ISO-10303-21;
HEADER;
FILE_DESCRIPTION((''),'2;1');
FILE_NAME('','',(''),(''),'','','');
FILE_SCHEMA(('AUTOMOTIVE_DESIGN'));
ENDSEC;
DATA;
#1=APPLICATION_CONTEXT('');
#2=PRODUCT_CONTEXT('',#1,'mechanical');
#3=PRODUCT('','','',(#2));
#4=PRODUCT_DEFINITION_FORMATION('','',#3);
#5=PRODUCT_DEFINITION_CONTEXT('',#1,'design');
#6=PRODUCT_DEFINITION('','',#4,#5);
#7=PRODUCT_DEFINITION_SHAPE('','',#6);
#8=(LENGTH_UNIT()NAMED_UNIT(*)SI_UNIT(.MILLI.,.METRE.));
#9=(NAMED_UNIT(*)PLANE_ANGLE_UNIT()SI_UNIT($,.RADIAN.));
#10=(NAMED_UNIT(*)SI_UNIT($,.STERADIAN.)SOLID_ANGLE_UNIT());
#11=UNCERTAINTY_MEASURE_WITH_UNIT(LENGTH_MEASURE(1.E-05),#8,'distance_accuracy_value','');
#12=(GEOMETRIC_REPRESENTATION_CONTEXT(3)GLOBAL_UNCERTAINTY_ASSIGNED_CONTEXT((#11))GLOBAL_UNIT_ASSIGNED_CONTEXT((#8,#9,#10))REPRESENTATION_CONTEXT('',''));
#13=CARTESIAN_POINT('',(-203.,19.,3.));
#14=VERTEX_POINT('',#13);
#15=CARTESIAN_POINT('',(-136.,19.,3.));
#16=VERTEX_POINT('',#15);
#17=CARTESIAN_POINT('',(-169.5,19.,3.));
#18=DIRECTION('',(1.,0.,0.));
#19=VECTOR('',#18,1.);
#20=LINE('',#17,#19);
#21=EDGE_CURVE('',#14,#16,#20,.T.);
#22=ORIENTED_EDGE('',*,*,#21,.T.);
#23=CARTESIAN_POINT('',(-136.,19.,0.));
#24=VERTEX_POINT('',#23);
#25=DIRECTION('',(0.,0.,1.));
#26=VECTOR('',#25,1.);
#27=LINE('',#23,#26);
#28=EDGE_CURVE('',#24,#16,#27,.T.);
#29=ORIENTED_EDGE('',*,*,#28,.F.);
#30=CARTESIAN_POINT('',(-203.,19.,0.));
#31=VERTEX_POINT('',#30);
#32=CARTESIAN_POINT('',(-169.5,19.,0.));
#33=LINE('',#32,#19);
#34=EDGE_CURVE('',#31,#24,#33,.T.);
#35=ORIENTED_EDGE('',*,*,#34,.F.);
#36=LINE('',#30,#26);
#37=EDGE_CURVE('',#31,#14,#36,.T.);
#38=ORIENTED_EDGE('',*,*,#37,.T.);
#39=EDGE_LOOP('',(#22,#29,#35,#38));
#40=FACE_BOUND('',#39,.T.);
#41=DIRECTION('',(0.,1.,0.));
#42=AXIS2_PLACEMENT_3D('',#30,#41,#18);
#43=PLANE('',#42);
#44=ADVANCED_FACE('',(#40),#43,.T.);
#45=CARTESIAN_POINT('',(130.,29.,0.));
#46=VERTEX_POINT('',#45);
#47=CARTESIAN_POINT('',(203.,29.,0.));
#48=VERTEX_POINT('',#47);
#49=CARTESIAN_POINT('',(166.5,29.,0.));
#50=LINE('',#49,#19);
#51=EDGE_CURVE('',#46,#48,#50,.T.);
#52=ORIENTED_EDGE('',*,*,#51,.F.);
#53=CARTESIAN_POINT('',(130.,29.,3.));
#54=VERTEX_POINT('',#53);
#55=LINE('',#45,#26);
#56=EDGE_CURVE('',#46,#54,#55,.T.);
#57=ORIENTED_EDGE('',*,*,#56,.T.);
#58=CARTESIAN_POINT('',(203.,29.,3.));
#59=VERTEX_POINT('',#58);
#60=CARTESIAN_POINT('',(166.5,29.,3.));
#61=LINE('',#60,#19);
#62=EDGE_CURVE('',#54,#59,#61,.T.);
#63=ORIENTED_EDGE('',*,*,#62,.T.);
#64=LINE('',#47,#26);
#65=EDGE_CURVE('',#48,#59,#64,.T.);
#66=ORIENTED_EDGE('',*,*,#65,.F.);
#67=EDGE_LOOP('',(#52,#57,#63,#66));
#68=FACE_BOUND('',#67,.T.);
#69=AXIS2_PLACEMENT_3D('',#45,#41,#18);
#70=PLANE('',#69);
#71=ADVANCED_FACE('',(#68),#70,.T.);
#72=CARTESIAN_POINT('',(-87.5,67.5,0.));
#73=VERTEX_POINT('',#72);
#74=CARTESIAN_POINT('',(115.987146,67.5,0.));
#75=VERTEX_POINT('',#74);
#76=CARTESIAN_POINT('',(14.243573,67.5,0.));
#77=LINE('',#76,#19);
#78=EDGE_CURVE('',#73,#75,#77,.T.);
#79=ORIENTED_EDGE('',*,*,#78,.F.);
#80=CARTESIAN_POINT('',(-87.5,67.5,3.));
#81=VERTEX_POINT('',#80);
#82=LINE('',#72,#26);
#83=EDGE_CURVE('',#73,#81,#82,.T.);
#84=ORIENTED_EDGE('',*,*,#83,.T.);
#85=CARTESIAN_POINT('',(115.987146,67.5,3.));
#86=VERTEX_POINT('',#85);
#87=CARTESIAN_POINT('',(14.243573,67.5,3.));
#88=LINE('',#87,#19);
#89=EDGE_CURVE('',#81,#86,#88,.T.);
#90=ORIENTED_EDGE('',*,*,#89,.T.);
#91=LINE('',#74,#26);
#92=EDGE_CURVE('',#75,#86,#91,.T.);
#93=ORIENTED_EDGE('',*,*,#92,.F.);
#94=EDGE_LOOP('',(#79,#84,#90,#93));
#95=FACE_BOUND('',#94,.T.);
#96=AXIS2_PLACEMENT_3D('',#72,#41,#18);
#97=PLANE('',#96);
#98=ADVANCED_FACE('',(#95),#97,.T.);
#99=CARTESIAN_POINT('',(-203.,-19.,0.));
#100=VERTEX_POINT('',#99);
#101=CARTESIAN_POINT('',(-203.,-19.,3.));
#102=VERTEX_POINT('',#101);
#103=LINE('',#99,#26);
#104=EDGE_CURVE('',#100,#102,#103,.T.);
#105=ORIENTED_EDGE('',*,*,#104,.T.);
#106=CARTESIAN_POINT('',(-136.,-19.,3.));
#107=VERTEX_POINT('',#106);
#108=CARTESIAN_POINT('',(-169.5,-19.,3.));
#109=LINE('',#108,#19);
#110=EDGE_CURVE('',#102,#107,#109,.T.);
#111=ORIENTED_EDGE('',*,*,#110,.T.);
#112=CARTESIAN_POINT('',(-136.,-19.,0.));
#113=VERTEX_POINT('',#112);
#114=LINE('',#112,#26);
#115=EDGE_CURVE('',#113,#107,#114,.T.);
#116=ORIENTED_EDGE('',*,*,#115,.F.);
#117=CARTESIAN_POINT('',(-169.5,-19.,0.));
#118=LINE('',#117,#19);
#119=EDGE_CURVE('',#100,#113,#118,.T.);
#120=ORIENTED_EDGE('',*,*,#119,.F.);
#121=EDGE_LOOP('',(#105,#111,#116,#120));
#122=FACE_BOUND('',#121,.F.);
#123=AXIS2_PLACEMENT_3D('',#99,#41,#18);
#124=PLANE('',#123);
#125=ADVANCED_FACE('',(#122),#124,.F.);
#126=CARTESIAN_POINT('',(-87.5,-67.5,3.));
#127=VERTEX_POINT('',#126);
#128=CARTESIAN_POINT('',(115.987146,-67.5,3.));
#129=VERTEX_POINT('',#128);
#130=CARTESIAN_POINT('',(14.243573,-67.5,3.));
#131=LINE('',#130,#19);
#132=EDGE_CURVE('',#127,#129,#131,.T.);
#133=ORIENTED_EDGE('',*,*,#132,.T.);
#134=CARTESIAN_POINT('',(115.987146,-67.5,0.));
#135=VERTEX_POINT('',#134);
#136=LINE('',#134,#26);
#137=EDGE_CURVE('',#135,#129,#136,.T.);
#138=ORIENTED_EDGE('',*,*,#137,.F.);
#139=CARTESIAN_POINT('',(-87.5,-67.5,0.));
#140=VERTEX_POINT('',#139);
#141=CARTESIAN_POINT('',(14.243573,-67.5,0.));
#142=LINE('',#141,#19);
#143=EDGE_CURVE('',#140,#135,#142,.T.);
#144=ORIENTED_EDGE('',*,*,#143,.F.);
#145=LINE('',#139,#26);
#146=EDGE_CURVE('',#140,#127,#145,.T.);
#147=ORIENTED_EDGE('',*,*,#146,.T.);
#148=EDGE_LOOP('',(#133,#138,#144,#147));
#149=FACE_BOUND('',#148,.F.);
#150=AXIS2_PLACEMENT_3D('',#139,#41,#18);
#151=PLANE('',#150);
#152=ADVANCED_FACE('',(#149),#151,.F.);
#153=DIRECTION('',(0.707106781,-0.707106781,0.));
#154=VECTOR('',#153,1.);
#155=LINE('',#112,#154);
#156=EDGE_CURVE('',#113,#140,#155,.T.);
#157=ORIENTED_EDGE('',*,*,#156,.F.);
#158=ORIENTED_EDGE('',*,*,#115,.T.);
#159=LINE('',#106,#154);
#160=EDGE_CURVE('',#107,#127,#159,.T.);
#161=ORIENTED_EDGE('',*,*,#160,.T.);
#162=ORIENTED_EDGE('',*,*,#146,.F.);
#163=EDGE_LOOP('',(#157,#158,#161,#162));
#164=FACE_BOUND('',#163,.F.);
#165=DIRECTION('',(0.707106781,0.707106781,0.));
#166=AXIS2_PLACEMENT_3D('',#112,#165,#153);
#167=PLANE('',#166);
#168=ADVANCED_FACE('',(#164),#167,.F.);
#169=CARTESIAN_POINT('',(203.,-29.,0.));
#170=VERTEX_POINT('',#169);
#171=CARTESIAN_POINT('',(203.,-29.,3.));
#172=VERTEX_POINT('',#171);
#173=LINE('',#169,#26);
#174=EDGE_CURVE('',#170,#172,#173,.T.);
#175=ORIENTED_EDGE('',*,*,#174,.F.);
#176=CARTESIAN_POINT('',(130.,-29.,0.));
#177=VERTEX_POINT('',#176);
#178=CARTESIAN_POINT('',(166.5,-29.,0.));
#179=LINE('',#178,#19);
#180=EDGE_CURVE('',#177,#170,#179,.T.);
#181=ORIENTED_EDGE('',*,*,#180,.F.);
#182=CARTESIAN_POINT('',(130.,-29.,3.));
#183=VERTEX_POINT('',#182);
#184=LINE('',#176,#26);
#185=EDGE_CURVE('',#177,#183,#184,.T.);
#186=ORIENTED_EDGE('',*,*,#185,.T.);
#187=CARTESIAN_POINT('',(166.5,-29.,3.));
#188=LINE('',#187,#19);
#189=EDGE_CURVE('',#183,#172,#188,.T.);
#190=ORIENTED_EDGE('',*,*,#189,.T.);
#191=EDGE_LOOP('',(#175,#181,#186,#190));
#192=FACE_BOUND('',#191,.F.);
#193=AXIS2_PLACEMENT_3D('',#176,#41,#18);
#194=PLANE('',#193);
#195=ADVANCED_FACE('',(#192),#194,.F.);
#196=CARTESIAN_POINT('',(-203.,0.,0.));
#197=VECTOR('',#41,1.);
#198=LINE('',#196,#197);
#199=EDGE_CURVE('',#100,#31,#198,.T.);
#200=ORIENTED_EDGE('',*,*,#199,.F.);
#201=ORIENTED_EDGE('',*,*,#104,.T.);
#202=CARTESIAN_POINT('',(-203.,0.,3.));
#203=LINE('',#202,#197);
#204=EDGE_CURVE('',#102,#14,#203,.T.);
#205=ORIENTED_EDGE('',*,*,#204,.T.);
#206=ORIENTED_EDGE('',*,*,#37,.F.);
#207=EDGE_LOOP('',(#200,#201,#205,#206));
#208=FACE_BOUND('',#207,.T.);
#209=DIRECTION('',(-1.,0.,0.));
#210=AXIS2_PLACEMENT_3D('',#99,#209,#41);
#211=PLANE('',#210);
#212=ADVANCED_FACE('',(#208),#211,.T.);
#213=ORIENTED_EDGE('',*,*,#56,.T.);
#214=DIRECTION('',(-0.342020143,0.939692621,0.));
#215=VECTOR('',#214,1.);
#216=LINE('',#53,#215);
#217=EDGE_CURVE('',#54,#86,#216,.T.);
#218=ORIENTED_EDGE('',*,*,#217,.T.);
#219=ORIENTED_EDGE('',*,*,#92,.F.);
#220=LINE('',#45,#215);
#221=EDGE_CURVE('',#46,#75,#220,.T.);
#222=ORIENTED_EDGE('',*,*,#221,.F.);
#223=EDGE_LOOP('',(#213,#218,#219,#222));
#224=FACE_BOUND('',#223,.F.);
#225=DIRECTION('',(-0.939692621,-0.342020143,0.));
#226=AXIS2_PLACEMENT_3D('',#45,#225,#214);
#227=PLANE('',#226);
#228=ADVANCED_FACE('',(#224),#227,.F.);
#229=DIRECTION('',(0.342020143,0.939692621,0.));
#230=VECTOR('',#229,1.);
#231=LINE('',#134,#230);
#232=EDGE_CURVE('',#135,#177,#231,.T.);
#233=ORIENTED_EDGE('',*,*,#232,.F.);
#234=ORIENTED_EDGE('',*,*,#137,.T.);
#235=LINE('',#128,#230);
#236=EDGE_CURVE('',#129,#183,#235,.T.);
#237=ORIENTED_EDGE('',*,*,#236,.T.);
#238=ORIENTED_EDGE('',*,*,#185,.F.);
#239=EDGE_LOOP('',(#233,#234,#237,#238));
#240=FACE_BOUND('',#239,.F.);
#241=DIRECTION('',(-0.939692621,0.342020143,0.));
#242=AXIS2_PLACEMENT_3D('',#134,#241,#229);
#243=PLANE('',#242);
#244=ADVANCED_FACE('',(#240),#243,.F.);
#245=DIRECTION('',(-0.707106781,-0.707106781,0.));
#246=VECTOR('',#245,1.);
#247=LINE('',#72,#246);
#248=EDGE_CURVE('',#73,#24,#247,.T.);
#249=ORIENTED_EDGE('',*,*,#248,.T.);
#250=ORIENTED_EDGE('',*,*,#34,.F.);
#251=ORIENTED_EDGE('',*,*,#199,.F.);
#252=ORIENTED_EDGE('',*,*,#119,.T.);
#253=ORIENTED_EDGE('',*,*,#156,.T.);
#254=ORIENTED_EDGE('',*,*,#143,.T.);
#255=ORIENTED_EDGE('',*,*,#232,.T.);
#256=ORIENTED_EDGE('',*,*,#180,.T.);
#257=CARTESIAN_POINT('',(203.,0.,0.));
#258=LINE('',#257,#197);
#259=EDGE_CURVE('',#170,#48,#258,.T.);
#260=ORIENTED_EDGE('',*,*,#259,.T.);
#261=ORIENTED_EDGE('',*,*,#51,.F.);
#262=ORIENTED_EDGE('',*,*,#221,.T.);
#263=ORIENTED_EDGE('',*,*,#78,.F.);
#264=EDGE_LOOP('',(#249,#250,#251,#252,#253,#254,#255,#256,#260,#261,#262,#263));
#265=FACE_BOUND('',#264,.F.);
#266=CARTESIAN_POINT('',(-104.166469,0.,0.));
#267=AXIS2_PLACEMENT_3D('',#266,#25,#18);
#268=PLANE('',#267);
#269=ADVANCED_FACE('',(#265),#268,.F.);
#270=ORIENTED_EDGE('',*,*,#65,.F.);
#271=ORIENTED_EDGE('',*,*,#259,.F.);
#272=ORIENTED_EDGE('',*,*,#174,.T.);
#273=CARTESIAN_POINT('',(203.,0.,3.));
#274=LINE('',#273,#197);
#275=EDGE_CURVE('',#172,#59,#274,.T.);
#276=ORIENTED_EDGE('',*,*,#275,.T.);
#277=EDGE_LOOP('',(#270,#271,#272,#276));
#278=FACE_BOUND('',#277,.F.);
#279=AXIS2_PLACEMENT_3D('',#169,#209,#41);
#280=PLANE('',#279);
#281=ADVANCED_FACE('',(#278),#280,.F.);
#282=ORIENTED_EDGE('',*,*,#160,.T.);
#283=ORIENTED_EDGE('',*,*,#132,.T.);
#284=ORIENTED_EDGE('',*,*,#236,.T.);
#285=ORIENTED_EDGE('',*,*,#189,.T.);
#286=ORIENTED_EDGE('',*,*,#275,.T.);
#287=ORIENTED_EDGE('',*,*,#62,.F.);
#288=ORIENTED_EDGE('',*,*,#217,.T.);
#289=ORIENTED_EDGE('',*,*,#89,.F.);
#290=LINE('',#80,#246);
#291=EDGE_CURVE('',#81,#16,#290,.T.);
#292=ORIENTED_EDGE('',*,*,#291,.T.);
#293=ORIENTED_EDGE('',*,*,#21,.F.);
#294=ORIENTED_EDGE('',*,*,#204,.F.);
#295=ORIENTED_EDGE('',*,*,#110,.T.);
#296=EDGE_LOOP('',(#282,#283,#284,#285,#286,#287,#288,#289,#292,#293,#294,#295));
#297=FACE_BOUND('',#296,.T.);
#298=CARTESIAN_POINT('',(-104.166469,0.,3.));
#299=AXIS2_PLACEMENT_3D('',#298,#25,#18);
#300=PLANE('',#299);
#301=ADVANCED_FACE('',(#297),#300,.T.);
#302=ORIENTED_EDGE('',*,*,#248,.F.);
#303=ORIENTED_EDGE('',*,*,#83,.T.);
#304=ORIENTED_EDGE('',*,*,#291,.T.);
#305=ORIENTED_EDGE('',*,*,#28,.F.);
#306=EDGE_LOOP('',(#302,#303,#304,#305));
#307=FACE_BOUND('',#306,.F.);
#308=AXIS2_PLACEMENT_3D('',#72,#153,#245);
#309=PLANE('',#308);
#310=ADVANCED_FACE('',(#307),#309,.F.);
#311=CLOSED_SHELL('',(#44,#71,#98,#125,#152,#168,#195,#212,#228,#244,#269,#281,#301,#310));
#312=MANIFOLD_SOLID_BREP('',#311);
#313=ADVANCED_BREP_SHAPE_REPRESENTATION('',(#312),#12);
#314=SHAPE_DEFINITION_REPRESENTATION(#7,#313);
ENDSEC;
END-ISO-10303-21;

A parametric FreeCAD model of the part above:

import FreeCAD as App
import Part
import Sketcher

V = App.Vector
Q = App.Units.Quantity


def add_polygon(sketch, points):
    """Adds a closed chain of lines whose ends are joined by coincident constraints."""
    first, n = sketch.GeometryCount, len(points)
    for a, b in zip(points, points[1:] + points[:1]):
        sketch.addGeometry(Part.LineSegment(App.Vector(*a, 0), App.Vector(*b, 0)), False)
    for i in range(n):
        sketch.addConstraint(Sketcher.Constraint("Coincident", first + i, 2, first + (i + 1) % n, 1))

doc = App.newDocument("Part")
body = doc.addObject("PartDesign::Body", "Body")

sketch1 = body.newObject("Sketcher::SketchObject", "Sketch")
sketch1.AttachmentSupport = (doc.getObject("XY_Plane"), [""])
sketch1.MapMode = "FlatFace"
add_polygon(sketch1, [(-136, -19), (-88, -68), (116, -68), (130, -29), (203, -29), (203, 29), (130, 29), (116, 68), (-88, 68), (-136, 19), (-203, 19), (-203, -19)])
sketch1.addConstraint(Sketcher.Constraint("Horizontal", 1))
sketch1.addConstraint(Sketcher.Constraint("Horizontal", 3))
sketch1.addConstraint(Sketcher.Constraint("Vertical", 4))
sketch1.addConstraint(Sketcher.Constraint("Horizontal", 5))
sketch1.addConstraint(Sketcher.Constraint("Horizontal", 7))
sketch1.addConstraint(Sketcher.Constraint("Horizontal", 9))
sketch1.addConstraint(Sketcher.Constraint("Vertical", 10))
sketch1.addConstraint(Sketcher.Constraint("Horizontal", 11))
sketch1.addConstraint(Sketcher.Constraint("Symmetric", 2, 2, 5, 2, -1))
sketch1.addConstraint(Sketcher.Constraint("Symmetric", 1, 2, 6, 2, -1))
sketch1.addConstraint(Sketcher.Constraint("Symmetric", 8, 2, 11, 2, -1))
sketch1.addConstraint(Sketcher.Constraint("Perpendicular", 0, 8))
sketch1.addConstraint(Sketcher.Constraint("Vertical", 0, 2, 7, 2))
sketch1.addConstraint(Sketcher.Constraint("DistanceX", 3, 1, 3, 2, 73.0))
sketch1.addConstraint(Sketcher.Constraint("DistanceX", 9, 2, 9, 1, 67.0))
sketch1.addConstraint(Sketcher.Constraint("DistanceY", 4, 1, 4, 2, 58.0))
sketch1.addConstraint(Sketcher.Constraint("DistanceY", 10, 2, 10, 1, 38.0))
sketch1.addConstraint(Sketcher.Constraint("Angle", 2, Q("70 deg")))
sketch1.addConstraint(Sketcher.Constraint("DistanceX", -1, 1, 2, 2, 130.0))
sketch1.addConstraint(Sketcher.Constraint("DistanceX", 8, 2, -1, 1, 136.0))
sketch1.addConstraint(Sketcher.Constraint("DistanceY", 1, 2, 6, 2, 135.0))
pad1 = body.newObject("PartDesign::Pad", "Pad")
pad1.Profile = sketch1
pad1.Length = 3

doc.recompute()
